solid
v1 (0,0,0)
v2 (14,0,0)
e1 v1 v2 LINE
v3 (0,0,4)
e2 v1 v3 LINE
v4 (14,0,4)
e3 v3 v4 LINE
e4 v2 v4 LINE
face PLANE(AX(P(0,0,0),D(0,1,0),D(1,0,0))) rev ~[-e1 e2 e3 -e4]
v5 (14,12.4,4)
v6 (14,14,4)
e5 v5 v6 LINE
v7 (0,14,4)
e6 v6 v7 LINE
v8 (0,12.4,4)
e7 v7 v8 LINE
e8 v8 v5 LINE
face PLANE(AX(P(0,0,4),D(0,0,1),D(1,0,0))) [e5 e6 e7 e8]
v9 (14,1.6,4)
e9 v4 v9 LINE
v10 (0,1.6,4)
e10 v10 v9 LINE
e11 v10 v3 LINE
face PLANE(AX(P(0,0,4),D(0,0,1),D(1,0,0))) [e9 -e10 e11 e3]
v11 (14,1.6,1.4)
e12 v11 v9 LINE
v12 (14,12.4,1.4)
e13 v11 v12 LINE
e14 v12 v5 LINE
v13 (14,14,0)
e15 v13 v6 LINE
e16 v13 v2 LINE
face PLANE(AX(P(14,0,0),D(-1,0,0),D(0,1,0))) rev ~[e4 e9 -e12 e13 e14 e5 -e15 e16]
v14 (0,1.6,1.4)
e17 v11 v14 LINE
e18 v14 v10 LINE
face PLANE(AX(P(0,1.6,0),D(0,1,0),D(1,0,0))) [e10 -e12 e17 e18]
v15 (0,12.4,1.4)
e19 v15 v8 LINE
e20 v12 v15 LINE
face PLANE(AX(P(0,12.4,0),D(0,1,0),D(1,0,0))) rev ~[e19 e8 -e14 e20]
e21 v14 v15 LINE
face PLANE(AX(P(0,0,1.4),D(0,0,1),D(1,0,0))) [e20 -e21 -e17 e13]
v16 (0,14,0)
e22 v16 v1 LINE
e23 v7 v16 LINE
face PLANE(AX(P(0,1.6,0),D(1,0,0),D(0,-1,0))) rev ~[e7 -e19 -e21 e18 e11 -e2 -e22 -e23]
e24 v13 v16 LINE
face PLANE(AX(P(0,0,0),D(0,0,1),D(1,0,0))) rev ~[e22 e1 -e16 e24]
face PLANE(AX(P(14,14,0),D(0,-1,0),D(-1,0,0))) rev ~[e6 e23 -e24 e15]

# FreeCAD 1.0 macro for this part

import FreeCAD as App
import Part
import Sketcher
from FreeCAD import Vector
Q = App.Units.Quantity


def add_polygon(sketch, points):
    """Adds a closed chain of lines whose ends are joined by coincident constraints."""
    first, n = sketch.GeometryCount, len(points)
    for a, b in zip(points, points[1:] + points[:1]):
        sketch.addGeometry(Part.LineSegment(App.Vector(*a, 0), App.Vector(*b, 0)), False)
    for i in range(n):
        sketch.addConstraint(Sketcher.Constraint("Coincident", first + i, 2, first + (i + 1) % n, 1))

doc = App.newDocument("Part")
body = doc.addObject("PartDesign::Body", "Body")

# Sketch on XY plane
sketch1 = body.newObject("Sketcher::SketchObject", "Sketch")
sketch1.AttachmentSupport = (doc.getObject("XY_Plane"), [""])
sketch1.MapMode = "FlatFace"
add_polygon(sketch1, [(0, 0), (14, 0), (14, 14), (0, 14)])  # lines 0-3
sketch1.addConstraint([
    Sketcher.Constraint("Horizontal", 0),
    Sketcher.Constraint("Vertical", 1),
    Sketcher.Constraint("Horizontal", 2),
    Sketcher.Constraint("Vertical", 3),
    Sketcher.Constraint("Coincident", 3, 2, -1, 1),
    Sketcher.Constraint("Equal", 2, 1),
    Sketcher.Constraint("DistanceX", 0, 1, 0, 2, Q("14 mm")),
])
pad1 = body.newObject("PartDesign::Pad", "Pad")
pad1.Profile = sketch1
pad1.Length = 1.4

# Sketch on XY plane
sketch2 = body.newObject("Sketcher::SketchObject", "Sketch001")
sketch2.AttachmentSupport = (doc.getObject("XY_Plane"), [""])
sketch2.MapMode = "FlatFace"
add_polygon(sketch2, [(0, 1.6), (0, 0), (14, 0), (14, 1.6)])  # lines 0-3
add_polygon(sketch2, [(0, 14), (0, 12.4), (14, 12.4), (14, 14)])  # lines 4-7
sketch2.addConstraint([
    Sketcher.Constraint("Vertical", 0),
    Sketcher.Constraint("Horizontal", 1),
    Sketcher.Constraint("Vertical", 2),
    Sketcher.Constraint("Horizontal", 3),
    Sketcher.Constraint("Vertical", 4),
    Sketcher.Constraint("Horizontal", 5),
    Sketcher.Constraint("Vertical", 6),
    Sketcher.Constraint("Horizontal", 7),
    Sketcher.Constraint("Coincident", 0, 2, -1, 1),
    Sketcher.Constraint("PointOnObject", 4, 2, -2),
    Sketcher.Constraint("Vertical", 2, 2, 5, 2),
    Sketcher.Constraint("Equal", 2, 4),
    Sketcher.Constraint("DistanceX", 1, 1, 1, 2, Q("14 mm")),
    Sketcher.Constraint("DistanceY", 0, 2, 0, 1, Q("1.6 mm")),
    Sketcher.Constraint("DistanceY", -1, 1, 6, 2, Q("14 mm")),
])
pad2 = body.newObject("PartDesign::Pad", "Pad001")
pad2.Profile = sketch2
pad2.Length = 4

doc.recompute()
